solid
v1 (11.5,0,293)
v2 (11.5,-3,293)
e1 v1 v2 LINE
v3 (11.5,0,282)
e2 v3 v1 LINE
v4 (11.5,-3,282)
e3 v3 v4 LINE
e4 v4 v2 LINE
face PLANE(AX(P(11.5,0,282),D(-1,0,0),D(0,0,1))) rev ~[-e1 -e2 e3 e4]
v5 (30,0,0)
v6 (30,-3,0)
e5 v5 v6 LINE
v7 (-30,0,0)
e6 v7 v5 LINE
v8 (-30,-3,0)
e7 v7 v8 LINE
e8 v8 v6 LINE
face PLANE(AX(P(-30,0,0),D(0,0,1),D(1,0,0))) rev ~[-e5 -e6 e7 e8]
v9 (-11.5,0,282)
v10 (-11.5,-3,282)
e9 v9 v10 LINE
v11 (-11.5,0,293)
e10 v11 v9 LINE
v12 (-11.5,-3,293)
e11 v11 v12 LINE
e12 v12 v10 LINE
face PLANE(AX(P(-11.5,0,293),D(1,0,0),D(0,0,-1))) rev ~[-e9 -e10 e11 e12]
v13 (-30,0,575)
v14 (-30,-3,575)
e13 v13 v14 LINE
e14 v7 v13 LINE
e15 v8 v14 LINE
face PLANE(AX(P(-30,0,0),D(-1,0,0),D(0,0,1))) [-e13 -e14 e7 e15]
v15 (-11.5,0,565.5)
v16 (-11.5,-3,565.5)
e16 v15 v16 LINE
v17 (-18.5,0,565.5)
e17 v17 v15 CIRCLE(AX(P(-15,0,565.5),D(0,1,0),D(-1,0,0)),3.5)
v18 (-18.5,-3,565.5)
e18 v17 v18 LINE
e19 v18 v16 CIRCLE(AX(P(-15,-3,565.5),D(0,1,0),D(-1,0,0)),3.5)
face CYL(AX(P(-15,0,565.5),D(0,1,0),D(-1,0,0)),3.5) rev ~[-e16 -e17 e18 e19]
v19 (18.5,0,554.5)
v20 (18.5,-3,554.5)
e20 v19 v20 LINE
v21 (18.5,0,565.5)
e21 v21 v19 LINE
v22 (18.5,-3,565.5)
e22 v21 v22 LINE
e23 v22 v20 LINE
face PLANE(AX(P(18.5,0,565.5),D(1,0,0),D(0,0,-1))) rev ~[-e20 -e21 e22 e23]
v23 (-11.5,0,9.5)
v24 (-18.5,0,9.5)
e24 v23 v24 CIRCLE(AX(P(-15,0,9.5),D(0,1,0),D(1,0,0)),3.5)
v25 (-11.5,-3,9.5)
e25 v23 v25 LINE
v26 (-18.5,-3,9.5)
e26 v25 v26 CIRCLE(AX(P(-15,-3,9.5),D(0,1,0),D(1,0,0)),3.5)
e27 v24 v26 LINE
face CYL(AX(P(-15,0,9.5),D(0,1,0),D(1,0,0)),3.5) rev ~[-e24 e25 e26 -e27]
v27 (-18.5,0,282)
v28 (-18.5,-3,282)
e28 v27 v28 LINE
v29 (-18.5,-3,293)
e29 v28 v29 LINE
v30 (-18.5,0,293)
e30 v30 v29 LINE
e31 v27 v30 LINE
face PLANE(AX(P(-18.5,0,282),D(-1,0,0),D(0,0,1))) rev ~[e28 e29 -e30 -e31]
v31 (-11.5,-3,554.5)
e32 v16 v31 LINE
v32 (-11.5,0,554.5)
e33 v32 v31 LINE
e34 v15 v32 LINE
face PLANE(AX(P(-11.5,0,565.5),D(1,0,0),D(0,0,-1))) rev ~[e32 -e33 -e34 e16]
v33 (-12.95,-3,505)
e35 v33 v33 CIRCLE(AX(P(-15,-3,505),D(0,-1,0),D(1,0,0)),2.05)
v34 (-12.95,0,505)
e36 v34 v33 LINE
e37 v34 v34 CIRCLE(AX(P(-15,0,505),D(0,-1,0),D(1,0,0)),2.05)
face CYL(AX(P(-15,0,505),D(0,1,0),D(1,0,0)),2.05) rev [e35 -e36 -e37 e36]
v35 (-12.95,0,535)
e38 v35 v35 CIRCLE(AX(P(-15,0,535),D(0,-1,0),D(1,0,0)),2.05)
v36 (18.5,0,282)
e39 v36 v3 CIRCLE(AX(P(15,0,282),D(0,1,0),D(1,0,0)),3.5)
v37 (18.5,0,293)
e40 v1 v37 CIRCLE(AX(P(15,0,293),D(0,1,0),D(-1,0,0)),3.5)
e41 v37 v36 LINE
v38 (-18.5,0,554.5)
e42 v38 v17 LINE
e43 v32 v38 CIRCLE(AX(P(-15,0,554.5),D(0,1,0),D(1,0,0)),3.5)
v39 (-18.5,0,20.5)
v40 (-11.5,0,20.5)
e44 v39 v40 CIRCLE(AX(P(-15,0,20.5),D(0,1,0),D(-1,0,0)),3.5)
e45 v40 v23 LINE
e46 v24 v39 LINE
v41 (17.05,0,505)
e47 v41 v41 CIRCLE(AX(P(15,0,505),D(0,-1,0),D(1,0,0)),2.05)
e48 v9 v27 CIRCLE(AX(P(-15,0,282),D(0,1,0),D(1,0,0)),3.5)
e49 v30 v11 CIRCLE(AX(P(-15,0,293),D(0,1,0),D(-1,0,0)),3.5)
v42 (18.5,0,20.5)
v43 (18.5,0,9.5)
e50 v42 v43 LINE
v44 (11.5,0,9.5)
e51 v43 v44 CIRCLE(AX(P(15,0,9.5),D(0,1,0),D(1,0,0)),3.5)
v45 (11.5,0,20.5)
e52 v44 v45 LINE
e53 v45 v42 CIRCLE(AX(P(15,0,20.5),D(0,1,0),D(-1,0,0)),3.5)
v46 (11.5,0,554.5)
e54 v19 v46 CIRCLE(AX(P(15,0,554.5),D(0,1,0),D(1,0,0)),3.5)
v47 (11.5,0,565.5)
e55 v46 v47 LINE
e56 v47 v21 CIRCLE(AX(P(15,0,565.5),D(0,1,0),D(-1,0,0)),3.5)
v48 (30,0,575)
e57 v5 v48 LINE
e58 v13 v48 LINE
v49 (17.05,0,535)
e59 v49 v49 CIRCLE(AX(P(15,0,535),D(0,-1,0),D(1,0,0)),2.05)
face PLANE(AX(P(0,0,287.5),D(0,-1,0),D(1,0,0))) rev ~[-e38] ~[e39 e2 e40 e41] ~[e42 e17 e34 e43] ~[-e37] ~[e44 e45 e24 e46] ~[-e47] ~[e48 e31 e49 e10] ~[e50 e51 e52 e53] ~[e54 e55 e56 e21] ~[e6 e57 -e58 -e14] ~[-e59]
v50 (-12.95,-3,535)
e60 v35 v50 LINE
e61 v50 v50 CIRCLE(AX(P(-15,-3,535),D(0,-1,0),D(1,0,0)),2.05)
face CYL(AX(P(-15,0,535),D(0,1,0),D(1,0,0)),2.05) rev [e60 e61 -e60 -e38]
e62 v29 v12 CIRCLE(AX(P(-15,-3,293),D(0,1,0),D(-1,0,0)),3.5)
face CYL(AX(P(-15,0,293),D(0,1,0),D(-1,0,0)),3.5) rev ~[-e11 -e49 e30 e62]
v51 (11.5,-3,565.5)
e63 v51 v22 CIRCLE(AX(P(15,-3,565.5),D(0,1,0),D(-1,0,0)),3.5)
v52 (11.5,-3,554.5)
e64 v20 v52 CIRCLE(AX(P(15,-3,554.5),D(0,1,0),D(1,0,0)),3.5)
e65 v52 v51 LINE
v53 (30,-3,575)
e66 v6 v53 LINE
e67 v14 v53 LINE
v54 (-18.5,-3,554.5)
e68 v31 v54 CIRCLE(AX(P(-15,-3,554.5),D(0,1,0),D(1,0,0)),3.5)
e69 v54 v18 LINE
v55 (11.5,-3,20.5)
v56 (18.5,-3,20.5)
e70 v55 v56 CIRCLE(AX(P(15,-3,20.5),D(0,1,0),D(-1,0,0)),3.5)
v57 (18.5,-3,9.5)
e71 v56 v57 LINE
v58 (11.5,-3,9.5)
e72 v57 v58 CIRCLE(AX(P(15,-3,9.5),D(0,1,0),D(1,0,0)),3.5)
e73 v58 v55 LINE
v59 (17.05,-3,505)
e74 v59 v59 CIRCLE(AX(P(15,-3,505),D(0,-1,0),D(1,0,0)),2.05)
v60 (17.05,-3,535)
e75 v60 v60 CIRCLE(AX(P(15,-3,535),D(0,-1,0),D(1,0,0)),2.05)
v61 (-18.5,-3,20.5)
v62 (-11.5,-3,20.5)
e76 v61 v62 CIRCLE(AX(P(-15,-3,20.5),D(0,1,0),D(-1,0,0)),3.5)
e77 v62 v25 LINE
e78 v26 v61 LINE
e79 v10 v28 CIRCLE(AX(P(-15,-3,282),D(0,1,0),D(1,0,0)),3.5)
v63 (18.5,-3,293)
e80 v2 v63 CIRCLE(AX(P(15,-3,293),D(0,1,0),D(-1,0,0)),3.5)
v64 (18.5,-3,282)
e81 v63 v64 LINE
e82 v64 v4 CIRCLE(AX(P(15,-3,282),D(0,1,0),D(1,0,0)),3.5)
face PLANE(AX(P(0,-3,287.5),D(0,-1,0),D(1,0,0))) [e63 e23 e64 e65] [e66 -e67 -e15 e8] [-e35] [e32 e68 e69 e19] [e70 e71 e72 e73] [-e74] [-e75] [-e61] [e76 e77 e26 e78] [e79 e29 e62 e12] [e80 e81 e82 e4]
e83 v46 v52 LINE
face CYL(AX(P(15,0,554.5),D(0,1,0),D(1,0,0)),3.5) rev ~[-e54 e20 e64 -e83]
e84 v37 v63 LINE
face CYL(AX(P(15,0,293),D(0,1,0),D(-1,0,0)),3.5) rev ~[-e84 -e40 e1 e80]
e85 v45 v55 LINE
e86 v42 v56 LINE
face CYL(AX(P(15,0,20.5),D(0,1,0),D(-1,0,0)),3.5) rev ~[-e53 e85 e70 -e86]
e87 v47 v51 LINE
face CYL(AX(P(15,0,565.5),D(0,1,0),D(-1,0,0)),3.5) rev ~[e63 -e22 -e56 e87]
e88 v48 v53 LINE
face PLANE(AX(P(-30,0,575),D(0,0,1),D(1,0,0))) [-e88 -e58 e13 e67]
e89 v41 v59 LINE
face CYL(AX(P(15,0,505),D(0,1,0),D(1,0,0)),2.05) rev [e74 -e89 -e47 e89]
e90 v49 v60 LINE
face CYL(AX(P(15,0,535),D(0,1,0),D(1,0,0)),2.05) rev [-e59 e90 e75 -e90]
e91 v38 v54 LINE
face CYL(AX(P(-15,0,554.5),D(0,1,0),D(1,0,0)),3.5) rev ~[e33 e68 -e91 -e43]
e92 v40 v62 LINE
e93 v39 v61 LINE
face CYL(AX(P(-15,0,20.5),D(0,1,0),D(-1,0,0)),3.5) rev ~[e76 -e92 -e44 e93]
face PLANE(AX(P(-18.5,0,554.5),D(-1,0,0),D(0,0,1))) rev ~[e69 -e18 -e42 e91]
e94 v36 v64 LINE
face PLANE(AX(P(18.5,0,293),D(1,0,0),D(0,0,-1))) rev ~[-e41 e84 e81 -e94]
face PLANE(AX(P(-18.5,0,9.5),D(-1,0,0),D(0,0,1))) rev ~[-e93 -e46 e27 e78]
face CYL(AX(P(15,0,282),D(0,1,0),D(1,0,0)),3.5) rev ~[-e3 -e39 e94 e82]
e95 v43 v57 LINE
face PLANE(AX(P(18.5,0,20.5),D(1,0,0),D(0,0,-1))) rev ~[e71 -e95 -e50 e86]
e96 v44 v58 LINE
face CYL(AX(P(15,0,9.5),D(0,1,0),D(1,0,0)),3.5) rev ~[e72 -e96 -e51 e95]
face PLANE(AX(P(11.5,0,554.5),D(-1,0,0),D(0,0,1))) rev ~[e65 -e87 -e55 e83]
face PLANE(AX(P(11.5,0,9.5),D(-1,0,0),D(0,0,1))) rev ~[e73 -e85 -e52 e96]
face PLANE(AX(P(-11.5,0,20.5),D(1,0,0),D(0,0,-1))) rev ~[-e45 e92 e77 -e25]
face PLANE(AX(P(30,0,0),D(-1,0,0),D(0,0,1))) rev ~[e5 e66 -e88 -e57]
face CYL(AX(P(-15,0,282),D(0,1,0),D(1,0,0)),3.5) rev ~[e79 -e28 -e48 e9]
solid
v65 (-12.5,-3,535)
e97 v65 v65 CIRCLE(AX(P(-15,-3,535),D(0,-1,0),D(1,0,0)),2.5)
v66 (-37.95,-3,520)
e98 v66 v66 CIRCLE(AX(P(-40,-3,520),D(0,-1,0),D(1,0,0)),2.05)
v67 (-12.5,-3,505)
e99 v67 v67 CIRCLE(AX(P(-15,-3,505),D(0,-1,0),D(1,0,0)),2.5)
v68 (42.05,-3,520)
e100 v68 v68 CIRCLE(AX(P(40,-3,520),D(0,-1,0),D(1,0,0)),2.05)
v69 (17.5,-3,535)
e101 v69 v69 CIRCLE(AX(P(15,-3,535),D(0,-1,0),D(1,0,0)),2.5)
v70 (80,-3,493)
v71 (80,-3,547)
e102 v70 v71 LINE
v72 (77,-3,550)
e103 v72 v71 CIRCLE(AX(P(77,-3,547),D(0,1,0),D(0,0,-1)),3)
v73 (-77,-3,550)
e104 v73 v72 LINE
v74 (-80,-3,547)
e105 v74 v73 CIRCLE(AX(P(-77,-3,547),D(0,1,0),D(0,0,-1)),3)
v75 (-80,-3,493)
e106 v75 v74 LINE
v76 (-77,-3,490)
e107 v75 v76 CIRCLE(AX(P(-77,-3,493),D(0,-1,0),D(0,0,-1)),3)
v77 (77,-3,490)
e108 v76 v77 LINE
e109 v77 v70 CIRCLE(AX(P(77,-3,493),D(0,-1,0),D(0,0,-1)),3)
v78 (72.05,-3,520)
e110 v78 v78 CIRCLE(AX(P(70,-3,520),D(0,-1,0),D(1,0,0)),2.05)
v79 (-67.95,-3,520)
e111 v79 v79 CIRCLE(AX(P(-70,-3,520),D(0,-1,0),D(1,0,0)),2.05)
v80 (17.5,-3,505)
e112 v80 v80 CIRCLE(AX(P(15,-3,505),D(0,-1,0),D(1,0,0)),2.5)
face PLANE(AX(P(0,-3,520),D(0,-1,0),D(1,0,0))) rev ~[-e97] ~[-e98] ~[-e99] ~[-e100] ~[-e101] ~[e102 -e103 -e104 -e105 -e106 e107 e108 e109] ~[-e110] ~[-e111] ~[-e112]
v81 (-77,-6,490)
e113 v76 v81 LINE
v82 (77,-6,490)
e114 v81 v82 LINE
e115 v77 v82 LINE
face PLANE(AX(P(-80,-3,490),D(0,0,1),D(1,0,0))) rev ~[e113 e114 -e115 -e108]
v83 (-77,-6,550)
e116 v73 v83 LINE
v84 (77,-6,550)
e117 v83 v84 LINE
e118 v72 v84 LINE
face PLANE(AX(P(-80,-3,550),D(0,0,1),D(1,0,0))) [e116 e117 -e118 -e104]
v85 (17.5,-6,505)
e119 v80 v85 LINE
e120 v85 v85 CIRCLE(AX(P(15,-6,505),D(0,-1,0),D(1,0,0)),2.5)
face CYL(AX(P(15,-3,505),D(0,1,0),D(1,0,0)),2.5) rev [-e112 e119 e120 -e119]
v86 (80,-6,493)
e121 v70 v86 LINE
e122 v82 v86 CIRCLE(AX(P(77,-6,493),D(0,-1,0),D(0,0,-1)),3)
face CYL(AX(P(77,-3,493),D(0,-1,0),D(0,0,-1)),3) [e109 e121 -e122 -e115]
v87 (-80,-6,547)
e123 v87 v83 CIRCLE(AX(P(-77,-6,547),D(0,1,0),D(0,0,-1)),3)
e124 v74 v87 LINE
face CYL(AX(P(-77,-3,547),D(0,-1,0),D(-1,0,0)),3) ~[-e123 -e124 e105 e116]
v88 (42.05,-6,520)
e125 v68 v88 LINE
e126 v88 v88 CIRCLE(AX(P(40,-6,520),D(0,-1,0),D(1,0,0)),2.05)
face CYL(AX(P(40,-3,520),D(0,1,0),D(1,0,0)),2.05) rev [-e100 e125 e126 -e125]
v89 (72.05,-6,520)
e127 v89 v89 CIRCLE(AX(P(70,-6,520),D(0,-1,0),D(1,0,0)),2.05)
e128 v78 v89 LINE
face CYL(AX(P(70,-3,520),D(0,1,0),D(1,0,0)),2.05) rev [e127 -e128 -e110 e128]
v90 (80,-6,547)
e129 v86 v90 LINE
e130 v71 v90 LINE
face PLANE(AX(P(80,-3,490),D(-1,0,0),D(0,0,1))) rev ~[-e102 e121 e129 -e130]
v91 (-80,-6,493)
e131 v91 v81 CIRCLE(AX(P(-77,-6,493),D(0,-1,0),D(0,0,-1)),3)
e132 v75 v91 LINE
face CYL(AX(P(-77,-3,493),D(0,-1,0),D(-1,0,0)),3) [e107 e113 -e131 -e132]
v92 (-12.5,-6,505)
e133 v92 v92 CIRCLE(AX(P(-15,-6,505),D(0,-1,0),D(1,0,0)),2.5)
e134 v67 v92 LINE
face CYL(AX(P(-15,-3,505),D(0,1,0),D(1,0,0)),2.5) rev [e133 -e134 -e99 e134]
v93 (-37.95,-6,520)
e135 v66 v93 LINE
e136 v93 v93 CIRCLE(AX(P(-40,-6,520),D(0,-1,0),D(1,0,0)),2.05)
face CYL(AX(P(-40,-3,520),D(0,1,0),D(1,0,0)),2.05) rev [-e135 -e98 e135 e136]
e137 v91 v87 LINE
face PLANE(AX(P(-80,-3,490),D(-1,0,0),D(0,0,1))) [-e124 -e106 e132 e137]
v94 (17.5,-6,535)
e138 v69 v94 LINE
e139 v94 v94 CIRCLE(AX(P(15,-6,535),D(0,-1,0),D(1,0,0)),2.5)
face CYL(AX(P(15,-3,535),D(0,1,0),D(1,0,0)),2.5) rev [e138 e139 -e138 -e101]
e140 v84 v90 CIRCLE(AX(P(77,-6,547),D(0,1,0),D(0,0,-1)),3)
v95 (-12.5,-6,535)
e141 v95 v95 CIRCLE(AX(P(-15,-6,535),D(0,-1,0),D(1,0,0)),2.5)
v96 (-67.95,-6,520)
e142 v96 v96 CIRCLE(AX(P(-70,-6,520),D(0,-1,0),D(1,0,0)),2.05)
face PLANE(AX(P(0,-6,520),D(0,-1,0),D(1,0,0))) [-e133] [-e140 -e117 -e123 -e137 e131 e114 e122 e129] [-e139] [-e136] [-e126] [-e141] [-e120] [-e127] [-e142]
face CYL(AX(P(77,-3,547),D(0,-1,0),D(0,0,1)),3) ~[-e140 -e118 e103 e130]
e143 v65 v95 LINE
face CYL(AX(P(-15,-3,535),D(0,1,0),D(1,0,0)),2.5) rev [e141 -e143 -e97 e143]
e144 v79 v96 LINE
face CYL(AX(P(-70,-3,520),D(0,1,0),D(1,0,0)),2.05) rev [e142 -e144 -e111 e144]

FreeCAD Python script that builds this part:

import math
import FreeCAD as App
import Part
import Sketcher

V = App.Vector
Q = App.Units.Quantity


def edges_at(feature, points):
    """Names of the edges that pass closest to the given points."""
    edges = feature.Shape.Edges
    near = lambda p: min(range(len(edges)), key=lambda i: edges[i].distToShape(Part.Vertex(*p))[0])
    return sorted({f"Edge{near(p) + 1}" for p in points})

doc = App.newDocument("Part")
body = doc.addObject("PartDesign::Body", "Body")

sketch1 = body.newObject("Sketcher::SketchObject", "Sketch")
sketch1.AttachmentSupport = (doc.getObject("XZ_Plane"), [""])
sketch1.MapMode = "FlatFace"
sketch1.addGeometry([
    Part.LineSegment(V(-30, 575, 0), V(-30, 0, 0)),
    Part.LineSegment(V(-30, 0, 0), V(30, 0, 0)),
    Part.LineSegment(V(30, 0, 0), V(30, 575, 0)),
    Part.LineSegment(V(30, 575, 0), V(-30, 575, 0)),
    Part.ArcOfCircle(Part.Circle(V(-15, 20.5, 0), V(0, 0, 1), 3.5), math.radians(0), math.radians(180)),
    Part.LineSegment(V(-11.5, 20.5, 0), V(-11.5, 9.5, 0)),
    Part.ArcOfCircle(Part.Circle(V(-15, 9.5, 0), V(0, 0, 1), 3.5), math.radians(180), math.radians(360)),
    Part.LineSegment(V(-18.5, 9.5, 0), V(-18.5, 20.5, 0)),
    Part.ArcOfCircle(Part.Circle(V(15, 20.5, 0), V(0, 0, 1), 3.5), math.radians(0), math.radians(180)),
    Part.LineSegment(V(18.5, 20.5, 0), V(18.5, 9.5, 0)),
    Part.ArcOfCircle(Part.Circle(V(15, 9.5, 0), V(0, 0, 1), 3.5), math.radians(180), math.radians(360)),
    Part.LineSegment(V(11.5, 9.5, 0), V(11.5, 20.5, 0)),
    Part.ArcOfCircle(Part.Circle(V(-15, 293, 0), V(0, 0, 1), 3.5), math.radians(0), math.radians(180)),
    Part.LineSegment(V(-11.5, 293, 0), V(-11.5, 282, 0)),
    Part.ArcOfCircle(Part.Circle(V(-15, 282, 0), V(0, 0, 1), 3.5), math.radians(180), math.radians(360)),
    Part.LineSegment(V(-18.5, 282, 0), V(-18.5, 293, 0)),
    Part.Circle(V(-15, 505, 0), V(0, 0, 1), 2),
    Part.Circle(V(-15, 535, 0), V(0, 0, 1), 2),
    Part.ArcOfCircle(Part.Circle(V(-15, 565.5, 0), V(0, 0, 1), 3.5), math.radians(0), math.radians(180)),
    Part.LineSegment(V(-11.5, 565.5, 0), V(-11.5, 554.5, 0)),
    Part.ArcOfCircle(Part.Circle(V(-15, 554.5, 0), V(0, 0, 1), 3.5), math.radians(180), math.radians(360)),
    Part.LineSegment(V(-18.5, 554.5, 0), V(-18.5, 565.5, 0)),
    Part.ArcOfCircle(Part.Circle(V(15, 293, 0), V(0, 0, 1), 3.5), math.radians(0), math.radians(180)),
    Part.LineSegment(V(18.5, 293, 0), V(18.5, 282, 0)),
    Part.ArcOfCircle(Part.Circle(V(15, 282, 0), V(0, 0, 1), 3.5), math.radians(180), math.radians(360)),
    Part.LineSegment(V(11.5, 282, 0), V(11.5, 293, 0)),
    Part.Circle(V(15, 505, 0), V(0, 0, 1), 2),
    Part.Circle(V(15, 535, 0), V(0, 0, 1), 2),
    Part.ArcOfCircle(Part.Circle(V(15, 565.5, 0), V(0, 0, 1), 3.5), math.radians(0), math.radians(180)),
    Part.LineSegment(V(18.5, 565.5, 0), V(18.5, 554.5, 0)),
    Part.ArcOfCircle(Part.Circle(V(15, 554.5, 0), V(0, 0, 1), 3.5), math.radians(180), math.radians(360)),
    Part.LineSegment(V(11.5, 554.5, 0), V(11.5, 565.5, 0)),
], False)
sketch1.addConstraint([
    Sketcher.Constraint("Coincident", 0, 2, 1, 1),
    Sketcher.Constraint("Coincident", 1, 2, 2, 1),
    Sketcher.Constraint("Coincident", 2, 2, 3, 1),
    Sketcher.Constraint("Coincident", 3, 2, 0, 1),
    Sketcher.Constraint("Tangent", 4, 1, 5, 1),
    Sketcher.Constraint("Tangent", 5, 2, 6, 2),
    Sketcher.Constraint("Tangent", 6, 1, 7, 1),
    Sketcher.Constraint("Tangent", 7, 2, 4, 2),
    Sketcher.Constraint("Tangent", 8, 1, 9, 1),
    Sketcher.Constraint("Tangent", 9, 2, 10, 2),
    Sketcher.Constraint("Tangent", 10, 1, 11, 1),
    Sketcher.Constraint("Tangent", 11, 2, 8, 2),
    Sketcher.Constraint("Tangent", 12, 1, 13, 1),
    Sketcher.Constraint("Tangent", 13, 2, 14, 2),
    Sketcher.Constraint("Tangent", 14, 1, 15, 1),
    Sketcher.Constraint("Tangent", 15, 2, 12, 2),
    Sketcher.Constraint("Tangent", 18, 1, 19, 1),
    Sketcher.Constraint("Tangent", 19, 2, 20, 2),
    Sketcher.Constraint("Tangent", 20, 1, 21, 1),
    Sketcher.Constraint("Tangent", 21, 2, 18, 2),
    Sketcher.Constraint("Tangent", 22, 1, 23, 1),
    Sketcher.Constraint("Tangent", 23, 2, 24, 2),
    Sketcher.Constraint("Tangent", 24, 1, 25, 1),
    Sketcher.Constraint("Tangent", 25, 2, 22, 2),
    Sketcher.Constraint("Tangent", 28, 1, 29, 1),
    Sketcher.Constraint("Tangent", 29, 2, 30, 2),
    Sketcher.Constraint("Tangent", 30, 1, 31, 1),
    Sketcher.Constraint("Tangent", 31, 2, 28, 2),
    Sketcher.Constraint("Vertical", 0),
    Sketcher.Constraint("Horizontal", 1),
    Sketcher.Constraint("Vertical", 2),
    Sketcher.Constraint("Horizontal", 3),
    Sketcher.Constraint("Vertical", 5),
    Sketcher.Constraint("Vertical", 7),
    Sketcher.Constraint("Vertical", 9),
    Sketcher.Constraint("Vertical", 11),
    Sketcher.Constraint("Vertical", 13),
    Sketcher.Constraint("Vertical", 15),
    Sketcher.Constraint("Vertical", 19),
    Sketcher.Constraint("Vertical", 21),
    Sketcher.Constraint("Vertical", 23),
    Sketcher.Constraint("Vertical", 25),
    Sketcher.Constraint("Vertical", 29),
    Sketcher.Constraint("Vertical", 31),
    Sketcher.Constraint("Equal", 6, 8),
    Sketcher.Constraint("Equal", 10, 12),
    Sketcher.Constraint("Equal", 16, 17),
    Sketcher.Constraint("Equal", 14, 18),
    Sketcher.Constraint("Equal", 20, 22),
    Sketcher.Constraint("Equal", 17, 26),
    Sketcher.Constraint("Equal", 26, 27),
    Sketcher.Constraint("Equal", 24, 28),
    Sketcher.Constraint("Symmetric", 0, 2, 1, 2, -1, 1),
    Sketcher.Constraint("Symmetric", 4, 3, 8, 3, -2),
    Sketcher.Constraint("Symmetric", 12, 3, 22, 3, -2),
    Sketcher.Constraint("Symmetric", 16, 3, 26, 3, -2),
    Sketcher.Constraint("Symmetric", 17, 3, 27, 3, -2),
    Sketcher.Constraint("Symmetric", 18, 3, 28, 3, -2),
    Sketcher.Constraint("Horizontal", 6, 3, 10, 3),
    Sketcher.Constraint("Horizontal", 14, 3, 24, 3),
    Sketcher.Constraint("Horizontal", 20, 3, 30, 3),
    Sketcher.Constraint("Vertical", 6, 3, 12, 3),
    Sketcher.Constraint("Vertical", 14, 3, 16, 3),
    Sketcher.Constraint("Vertical", 16, 3, 17, 3),
    Sketcher.Constraint("Vertical", 17, 3, 18, 3),
    Sketcher.Constraint("Equal", 11, 13),
    Sketcher.Constraint("Equal", 15, 19),
    Sketcher.Constraint("Diameter", 16, Q("4.1 mm")),
    Sketcher.Constraint("Radius", 4, Q("3.5 mm")),
    Sketcher.Constraint("DistanceX", 1, 1, 1, 2, Q("60 mm")),
    Sketcher.Constraint("DistanceY", 0, 2, 0, 1, Q("575 mm")),
    Sketcher.Constraint("DistanceY", 5, 2, 5, 1, Q("11 mm")),
    Sketcher.Constraint("DistanceX", 4, 3, -1, 1, Q("15 mm")),
    Sketcher.Constraint("DistanceY", -1, 1, 12, 3, Q("293 mm")),
    Sketcher.Constraint("DistanceY", -1, 1, 16, 3, Q("505 mm")),
    Sketcher.Constraint("DistanceY", -1, 1, 17, 3, Q("535 mm")),
    Sketcher.Constraint("DistanceY", 4, 3, 18, 3, Q("545 mm")),
    Sketcher.Constraint("DistanceY", -1, 1, 4, 3, Q("20.5 mm")),
])
pad1 = body.newObject("PartDesign::Pad", "Pad")
pad1.Profile = sketch1
pad1.Length = 3
body2 = doc.addObject("PartDesign::Body", "Body001")

sketch2 = body2.newObject("Sketcher::SketchObject", "Sketch001")
sketch2.AttachmentSupport = (doc.getObject("XZ_Plane001"), [""])
sketch2.MapMode = "FlatFace"
sketch2.AttachmentOffset = App.Placement(V(0, 0, 3), App.Rotation())
sketch2.addGeometry([
    Part.LineSegment(V(-80, 550, 0), V(-80, 490, 0)),
    Part.LineSegment(V(-80, 490, 0), V(80, 490, 0)),
    Part.LineSegment(V(80, 490, 0), V(80, 550, 0)),
    Part.LineSegment(V(80, 550, 0), V(-80, 550, 0)),
    Part.Circle(V(-15, 505, 0), V(0, 0, 1), 2.5),
    Part.Circle(V(15, 505, 0), V(0, 0, 1), 2.5),
    Part.Circle(V(-70, 520, 0), V(0, 0, 1), 2),
    Part.Circle(V(-40, 520, 0), V(0, 0, 1), 2),
    Part.Circle(V(-15, 535, 0), V(0, 0, 1), 2.5),
    Part.Circle(V(40, 520, 0), V(0, 0, 1), 2),
    Part.Circle(V(70, 520, 0), V(0, 0, 1), 2),
    Part.Circle(V(15, 535, 0), V(0, 0, 1), 2.5),
], False)
sketch2.addConstraint([
    Sketcher.Constraint("Coincident", 0, 2, 1, 1),
    Sketcher.Constraint("Coincident", 1, 2, 2, 1),
    Sketcher.Constraint("Coincident", 2, 2, 3, 1),
    Sketcher.Constraint("Coincident", 3, 2, 0, 1),
    Sketcher.Constraint("Vertical", 0),
    Sketcher.Constraint("Horizontal", 1),
    Sketcher.Constraint("Vertical", 2),
    Sketcher.Constraint("Horizontal", 3),
    Sketcher.Constraint("Equal", 4, 5),
    Sketcher.Constraint("Equal", 6, 7),
    Sketcher.Constraint("Equal", 5, 8),
    Sketcher.Constraint("Equal", 7, 9),
    Sketcher.Constraint("Equal", 9, 10),
    Sketcher.Constraint("Equal", 8, 11),
    Sketcher.Constraint("Symmetric", 4, 3, 5, 3, -2),
    Sketcher.Constraint("Symmetric", 7, 3, 9, 3, -2),
    Sketcher.Constraint("Symmetric", 6, 3, 10, 3, -2),
    Sketcher.Constraint("Symmetric", 8, 3, 11, 3, -2),
    Sketcher.Constraint("Horizontal", 6, 3, 7, 3),
    Sketcher.Constraint("Vertical", 4, 3, 8, 3),
    Sketcher.Constraint("Diameter", 4, Q("5 mm")),
    Sketcher.Constraint("Diameter", 6, Q("4.1 mm")),
    Sketcher.Constraint("DistanceX", 1, 1, 1, 2, Q("160 mm")),
    Sketcher.Constraint("DistanceY", 0, 2, 0, 1, Q("60 mm")),
    Sketcher.Constraint("DistanceX", 4, 3, -1, 1, Q("15 mm")),
    Sketcher.Constraint("DistanceY", -1, 1, 4, 3, Q("505 mm")),
    Sketcher.Constraint("DistanceX", 6, 3, -1, 1, Q("70 mm")),
    Sketcher.Constraint("DistanceY", -1, 1, 6, 3, Q("520 mm")),
    Sketcher.Constraint("DistanceX", 7, 3, -1, 1, Q("40 mm")),
    Sketcher.Constraint("DistanceY", -1, 1, 8, 3, Q("535 mm")),
    Sketcher.Constraint("DistanceX", 0, 2, -1, 1, Q("80 mm")),
    Sketcher.Constraint("DistanceY", -1, 1, 0, 2, Q("490 mm")),
])
pad2 = body2.newObject("PartDesign::Pad", "Pad001")
pad2.Profile = sketch2
pad2.Length = 3
doc.recompute()

fillet = body2.newObject("PartDesign::Fillet", "Fillet")
fillet.Base = (pad2, edges_at(pad2, [
    (-80, -4.5, 550),
    (-80, -4.5, 490),
    (80, -4.5, 550),
    (80, -4.5, 490),
]))
fillet.Radius = 3

doc.recompute()
